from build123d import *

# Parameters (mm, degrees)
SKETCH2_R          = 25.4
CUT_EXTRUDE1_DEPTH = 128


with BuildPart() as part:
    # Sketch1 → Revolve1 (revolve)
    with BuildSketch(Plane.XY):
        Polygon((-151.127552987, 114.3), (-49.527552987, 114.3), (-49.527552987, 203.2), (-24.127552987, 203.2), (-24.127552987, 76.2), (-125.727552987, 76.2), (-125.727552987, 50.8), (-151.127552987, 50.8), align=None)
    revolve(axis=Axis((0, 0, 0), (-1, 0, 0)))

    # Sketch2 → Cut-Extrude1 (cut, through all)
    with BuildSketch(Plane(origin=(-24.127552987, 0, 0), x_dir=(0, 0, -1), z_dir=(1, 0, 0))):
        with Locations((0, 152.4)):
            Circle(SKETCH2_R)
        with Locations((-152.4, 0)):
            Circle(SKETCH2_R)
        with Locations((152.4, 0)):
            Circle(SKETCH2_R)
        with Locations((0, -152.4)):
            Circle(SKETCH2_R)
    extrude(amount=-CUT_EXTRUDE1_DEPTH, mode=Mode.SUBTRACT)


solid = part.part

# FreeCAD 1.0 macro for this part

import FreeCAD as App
import Part
import Sketcher

V = App.Vector
Q = App.Units.Quantity

doc = App.newDocument("Part")
body = doc.addObject("PartDesign::Body", "Body")

# Sketch on XY plane
sketch1 = body.newObject("Sketcher::SketchObject", "Sketch")
sketch1.AttachmentSupport = (doc.getObject("XY_Plane"), [""])
sketch1.MapMode = "FlatFace"
sketch1.addGeometry([
    Part.LineSegment(V(-50, 114, 0), V(-151, 114, 0)),  # 0
    Part.LineSegment(V(-151, 114, 0), V(-151, 51, 0)),  # 1
    Part.LineSegment(V(-151, 51, 0), V(-126, 51, 0)),  # 2
    Part.LineSegment(V(-126, 51, 0), V(-126, 76, 0)),  # 3
    Part.LineSegment(V(-126, 76, 0), V(-24, 76, 0)),  # 4
    Part.LineSegment(V(-24, 76, 0), V(-24, 203, 0)),  # 5
    Part.LineSegment(V(-24, 203, 0), V(-50, 203, 0)),  # 6
    Part.LineSegment(V(-50, 203, 0), V(-50, 114, 0)),  # 7
], False)
sketch1.addConstraint([
    Sketcher.Constraint("Coincident", 0, 2, 1, 1),
    Sketcher.Constraint("Coincident", 1, 2, 2, 1),
    Sketcher.Constraint("Coincident", 2, 2, 3, 1),
    Sketcher.Constraint("Coincident", 3, 2, 4, 1),
    Sketcher.Constraint("Coincident", 4, 2, 5, 1),
    Sketcher.Constraint("Coincident", 5, 2, 6, 1),
    Sketcher.Constraint("Coincident", 6, 2, 7, 1),
    Sketcher.Constraint("Coincident", 7, 2, 0, 1),
    Sketcher.Constraint("Horizontal", 0),
    Sketcher.Constraint("Vertical", 1),
    Sketcher.Constraint("Horizontal", 2),
    Sketcher.Constraint("Vertical", 3),
    Sketcher.Constraint("Horizontal", 4),
    Sketcher.Constraint("Vertical", 5),
    Sketcher.Constraint("Horizontal", 6),
    Sketcher.Constraint("Vertical", 7),
    Sketcher.Constraint("Equal", 0, 4),
    Sketcher.Constraint("Equal", 6, 3),
    Sketcher.Constraint("DistanceX", 0, 2, 0, 1, Q("4 in")),
    Sketcher.Constraint("DistanceX", 2, 1, 2, 2, Q("1 in")),
    Sketcher.Constraint("DistanceY", 5, 1, 5, 2, Q("5 in")),
    Sketcher.Constraint("DistanceY", 1, 2, 1, 1, Q("2.5 in")),
    Sketcher.Constraint("DistanceY", -1, 1, 1, 2, Q("2 in")),
    Sketcher.Constraint("DistanceX", 0, 2, -1, 1, Q("151.127553 mm")),
])
revolution = body.newObject("PartDesign::Revolution", "Revolution")
revolution.Profile = sketch1
revolution.ReferenceAxis = (sketch1, ["H_Axis"])
revolution.Angle = 360

# Sketch on YZ plane
sketch2 = body.newObject("Sketcher::SketchObject", "Sketch001")
sketch2.AttachmentSupport = (doc.getObject("YZ_Plane"), [""])
sketch2.MapMode = "FlatFace"
sketch2.AttachmentOffset = App.Placement(V(0, 0, -24.127553), App.Rotation())
sketch2.addGeometry([
    Part.Circle(V(152, 0, 0), V(0, 0, 1), 25),
    Part.Circle(V(0, 152, 0), V(0, 0, 1), 25),
    Part.Circle(V(0, -152, 0), V(0, 0, 1), 25),
    Part.Circle(V(-152, 0, 0), V(0, 0, 1), 25),
], False)
sketch2.addConstraint([
    Sketcher.Constraint("Equal", 0, 1),
    Sketcher.Constraint("Equal", 1, 2),
    Sketcher.Constraint("Equal", 2, 3),
    Sketcher.Constraint("Symmetric", 1, 3, 2, 3, -1, 1),
    Sketcher.Constraint("Symmetric", 0, 3, 3, 3, -1, 1),
    Sketcher.Constraint("PointOnObject", 0, 3, -1),
    Sketcher.Constraint("PointOnObject", 1, 3, -2),
    Sketcher.Constraint("Diameter", 0, Q("2 in")),
    Sketcher.Constraint("DistanceX", -1, 1, 0, 3, Q("6 in")),
    Sketcher.Constraint("DistanceY", -1, 1, 1, 3, Q("6 in")),
])
pocket1 = body.newObject("PartDesign::Pocket", "Pocket")
pocket1.Profile = sketch2
pocket1.Type = "ThroughAll"

doc.recompute()
